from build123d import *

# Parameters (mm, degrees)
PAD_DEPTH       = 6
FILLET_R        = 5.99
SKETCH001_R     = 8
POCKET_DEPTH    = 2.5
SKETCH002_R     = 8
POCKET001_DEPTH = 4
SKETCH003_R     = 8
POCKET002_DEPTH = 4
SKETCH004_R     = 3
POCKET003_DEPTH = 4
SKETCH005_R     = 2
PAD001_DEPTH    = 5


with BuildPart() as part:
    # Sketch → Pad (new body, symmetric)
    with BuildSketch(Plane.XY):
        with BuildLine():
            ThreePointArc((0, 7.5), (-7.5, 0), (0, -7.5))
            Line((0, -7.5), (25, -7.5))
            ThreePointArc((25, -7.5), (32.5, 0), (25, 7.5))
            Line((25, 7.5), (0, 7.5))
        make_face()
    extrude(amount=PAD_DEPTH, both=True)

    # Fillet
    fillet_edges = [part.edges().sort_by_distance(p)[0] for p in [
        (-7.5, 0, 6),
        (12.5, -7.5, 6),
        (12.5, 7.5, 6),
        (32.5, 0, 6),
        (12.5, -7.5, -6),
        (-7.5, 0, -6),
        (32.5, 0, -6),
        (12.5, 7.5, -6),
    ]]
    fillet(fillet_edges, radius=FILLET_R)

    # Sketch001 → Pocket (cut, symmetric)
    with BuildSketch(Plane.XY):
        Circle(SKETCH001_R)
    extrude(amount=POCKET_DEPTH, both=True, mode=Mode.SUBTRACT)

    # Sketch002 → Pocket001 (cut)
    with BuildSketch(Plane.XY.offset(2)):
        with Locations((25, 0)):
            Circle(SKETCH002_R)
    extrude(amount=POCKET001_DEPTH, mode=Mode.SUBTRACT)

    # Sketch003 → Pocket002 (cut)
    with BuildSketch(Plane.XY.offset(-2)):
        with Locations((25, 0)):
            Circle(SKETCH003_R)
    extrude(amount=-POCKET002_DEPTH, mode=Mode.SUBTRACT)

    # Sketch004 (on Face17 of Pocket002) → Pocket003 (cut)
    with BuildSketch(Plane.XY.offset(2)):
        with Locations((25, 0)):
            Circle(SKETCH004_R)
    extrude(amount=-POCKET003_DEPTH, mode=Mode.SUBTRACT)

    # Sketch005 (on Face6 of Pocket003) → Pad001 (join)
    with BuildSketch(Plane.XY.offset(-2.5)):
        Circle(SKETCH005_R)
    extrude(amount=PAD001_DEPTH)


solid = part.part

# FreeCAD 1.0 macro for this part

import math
import FreeCAD as App
import Part
import Sketcher
Q = App.Units.Quantity


def edges_at(feature, points):
    """Names of the edges that pass closest to the given points."""
    edges = feature.Shape.Edges
    near = lambda p: min(range(len(edges)), key=lambda i: edges[i].distToShape(Part.Vertex(*p))[0])
    return sorted({f"Edge{near(p) + 1}" for p in points})

doc = App.newDocument("Part")
body = doc.addObject("PartDesign::Body", "Body")

sketch1 = body.newObject("Sketcher::SketchObject", "Sketch")
sketch1.AttachmentSupport = (doc.getObject("XY_Plane"), [""])
sketch1.MapMode = "FlatFace"
sketch1.addGeometry([
    Part.ArcOfCircle(Part.Circle(App.Vector(0, 0, 0), App.Vector(0, 0, 1), 8), math.radians(90), math.radians(270)),
    Part.LineSegment(App.Vector(0, -8, 0), App.Vector(25, -8, 0)),
    Part.ArcOfCircle(Part.Circle(App.Vector(25, 0, 0), App.Vector(0, 0, 1), 8), math.radians(-90), math.radians(90)),
    Part.LineSegment(App.Vector(25, 8, 0), App.Vector(0, 8, 0)),
], False)
sketch1.addConstraint([
    Sketcher.Constraint("Tangent", 0, 2, 1, 1),
    Sketcher.Constraint("Tangent", 1, 2, 2, 1),
    Sketcher.Constraint("Tangent", 2, 2, 3, 1),
    Sketcher.Constraint("Tangent", 3, 2, 0, 1),
    Sketcher.Constraint("Horizontal", 1),
    Sketcher.Constraint("Horizontal", 3),
    Sketcher.Constraint("Coincident", 0, 3, -1, 1),
    Sketcher.Constraint("Radius", 0, Q("7.5 mm")),
    Sketcher.Constraint("DistanceX", 1, 1, 1, 2, Q("25 mm")),
])
pad1 = body.newObject("PartDesign::Pad", "Pad")
pad1.Profile = sketch1
pad1.Length = 12
pad1.Midplane = True
doc.recompute()

fillet = body.newObject("PartDesign::Fillet", "Fillet")
fillet.Base = (pad1, edges_at(pad1, [
    (-7.5, 0, 6),
    (12.5, -7.5, 6),
    (12.5, 7.5, 6),
    (32.5, 0, 6),
    (12.5, -7.5, -6),
    (-7.5, 0, -6),
    (32.5, 0, -6),
    (12.5, 7.5, -6),
]))
fillet.Radius = 5.99

sketch2 = body.newObject("Sketcher::SketchObject", "Sketch001")
sketch2.AttachmentSupport = (doc.getObject("XY_Plane"), [""])
sketch2.MapMode = "FlatFace"
sketch2.addGeometry(Part.Circle(App.Vector(0, 0, 0), App.Vector(0, 0, 1), 8), False)
sketch2.addConstraint([
    Sketcher.Constraint("Coincident", 0, 3, -1, 1),
    Sketcher.Constraint("Diameter", 0, Q("16 mm")),
])
pocket1 = body.newObject("PartDesign::Pocket", "Pocket")
pocket1.Profile = sketch2
pocket1.Length = 5
pocket1.Midplane = True

sketch3 = body.newObject("Sketcher::SketchObject", "Sketch002")
sketch3.AttachmentSupport = (doc.getObject("XY_Plane"), [""])
sketch3.MapMode = "FlatFace"
sketch3.AttachmentOffset = App.Placement(App.Vector(0, 0, 2), App.Rotation())
sketch3.addGeometry(Part.Circle(App.Vector(25, 0, 0), App.Vector(0, 0, 1), 8), False)
sketch3.addConstraint([
    Sketcher.Constraint("PointOnObject", 0, 3, -1),
    Sketcher.Constraint("Diameter", 0, Q("16 mm")),
    Sketcher.Constraint("DistanceX", -1, 1, 0, 3, Q("25 mm")),
])
pocket2 = body.newObject("PartDesign::Pocket", "Pocket001")
pocket2.Profile = sketch3
pocket2.Length = 4
pocket2.Reversed = True

sketch4 = body.newObject("Sketcher::SketchObject", "Sketch003")
sketch4.AttachmentSupport = (doc.getObject("XY_Plane"), [""])
sketch4.MapMode = "FlatFace"
sketch4.AttachmentOffset = App.Placement(App.Vector(0, 0, -2), App.Rotation())
sketch4.addGeometry(Part.Circle(App.Vector(25, 0, 0), App.Vector(0, 0, 1), 8), False)
sketch4.addConstraint([
    Sketcher.Constraint("PointOnObject", 0, 3, -1),
    Sketcher.Constraint("Diameter", 0, Q("16 mm")),
    Sketcher.Constraint("DistanceX", -1, 1, 0, 3, Q("25 mm")),
])
pocket3 = body.newObject("PartDesign::Pocket", "Pocket002")
pocket3.Profile = sketch4
pocket3.Length = 4

sketch5 = body.newObject("Sketcher::SketchObject", "Sketch004")
sketch5.AttachmentSupport = (doc.getObject("XY_Plane"), [""])
sketch5.MapMode = "FlatFace"
sketch5.AttachmentOffset = App.Placement(App.Vector(0, 0, 2), App.Rotation())
sketch5.addGeometry(Part.Circle(App.Vector(25, 0, 0), App.Vector(0, 0, 1), 3), False)
sketch5.addConstraint([
    Sketcher.Constraint("PointOnObject", 0, 3, -1),
    Sketcher.Constraint("Diameter", 0, Q("6 mm")),
    Sketcher.Constraint("DistanceX", -1, 1, 0, 3, Q("25 mm")),
])
pocket4 = body.newObject("PartDesign::Pocket", "Pocket003")
pocket4.Profile = sketch5
pocket4.Length = 4

sketch6 = body.newObject("Sketcher::SketchObject", "Sketch005")
sketch6.AttachmentSupport = (doc.getObject("XY_Plane"), [""])
sketch6.MapMode = "FlatFace"
sketch6.AttachmentOffset = App.Placement(App.Vector(0, 0, -2.5), App.Rotation())
sketch6.addGeometry(Part.Circle(App.Vector(0, 0, 0), App.Vector(0, 0, 1), 2), False)
sketch6.addConstraint([
    Sketcher.Constraint("Coincident", 0, 3, -1, 1),
    Sketcher.Constraint("Diameter", 0, Q("4 mm")),
])
pad2 = body.newObject("PartDesign::Pad", "Pad001")
pad2.Profile = sketch6
pad2.Length = 5

doc.recompute()
